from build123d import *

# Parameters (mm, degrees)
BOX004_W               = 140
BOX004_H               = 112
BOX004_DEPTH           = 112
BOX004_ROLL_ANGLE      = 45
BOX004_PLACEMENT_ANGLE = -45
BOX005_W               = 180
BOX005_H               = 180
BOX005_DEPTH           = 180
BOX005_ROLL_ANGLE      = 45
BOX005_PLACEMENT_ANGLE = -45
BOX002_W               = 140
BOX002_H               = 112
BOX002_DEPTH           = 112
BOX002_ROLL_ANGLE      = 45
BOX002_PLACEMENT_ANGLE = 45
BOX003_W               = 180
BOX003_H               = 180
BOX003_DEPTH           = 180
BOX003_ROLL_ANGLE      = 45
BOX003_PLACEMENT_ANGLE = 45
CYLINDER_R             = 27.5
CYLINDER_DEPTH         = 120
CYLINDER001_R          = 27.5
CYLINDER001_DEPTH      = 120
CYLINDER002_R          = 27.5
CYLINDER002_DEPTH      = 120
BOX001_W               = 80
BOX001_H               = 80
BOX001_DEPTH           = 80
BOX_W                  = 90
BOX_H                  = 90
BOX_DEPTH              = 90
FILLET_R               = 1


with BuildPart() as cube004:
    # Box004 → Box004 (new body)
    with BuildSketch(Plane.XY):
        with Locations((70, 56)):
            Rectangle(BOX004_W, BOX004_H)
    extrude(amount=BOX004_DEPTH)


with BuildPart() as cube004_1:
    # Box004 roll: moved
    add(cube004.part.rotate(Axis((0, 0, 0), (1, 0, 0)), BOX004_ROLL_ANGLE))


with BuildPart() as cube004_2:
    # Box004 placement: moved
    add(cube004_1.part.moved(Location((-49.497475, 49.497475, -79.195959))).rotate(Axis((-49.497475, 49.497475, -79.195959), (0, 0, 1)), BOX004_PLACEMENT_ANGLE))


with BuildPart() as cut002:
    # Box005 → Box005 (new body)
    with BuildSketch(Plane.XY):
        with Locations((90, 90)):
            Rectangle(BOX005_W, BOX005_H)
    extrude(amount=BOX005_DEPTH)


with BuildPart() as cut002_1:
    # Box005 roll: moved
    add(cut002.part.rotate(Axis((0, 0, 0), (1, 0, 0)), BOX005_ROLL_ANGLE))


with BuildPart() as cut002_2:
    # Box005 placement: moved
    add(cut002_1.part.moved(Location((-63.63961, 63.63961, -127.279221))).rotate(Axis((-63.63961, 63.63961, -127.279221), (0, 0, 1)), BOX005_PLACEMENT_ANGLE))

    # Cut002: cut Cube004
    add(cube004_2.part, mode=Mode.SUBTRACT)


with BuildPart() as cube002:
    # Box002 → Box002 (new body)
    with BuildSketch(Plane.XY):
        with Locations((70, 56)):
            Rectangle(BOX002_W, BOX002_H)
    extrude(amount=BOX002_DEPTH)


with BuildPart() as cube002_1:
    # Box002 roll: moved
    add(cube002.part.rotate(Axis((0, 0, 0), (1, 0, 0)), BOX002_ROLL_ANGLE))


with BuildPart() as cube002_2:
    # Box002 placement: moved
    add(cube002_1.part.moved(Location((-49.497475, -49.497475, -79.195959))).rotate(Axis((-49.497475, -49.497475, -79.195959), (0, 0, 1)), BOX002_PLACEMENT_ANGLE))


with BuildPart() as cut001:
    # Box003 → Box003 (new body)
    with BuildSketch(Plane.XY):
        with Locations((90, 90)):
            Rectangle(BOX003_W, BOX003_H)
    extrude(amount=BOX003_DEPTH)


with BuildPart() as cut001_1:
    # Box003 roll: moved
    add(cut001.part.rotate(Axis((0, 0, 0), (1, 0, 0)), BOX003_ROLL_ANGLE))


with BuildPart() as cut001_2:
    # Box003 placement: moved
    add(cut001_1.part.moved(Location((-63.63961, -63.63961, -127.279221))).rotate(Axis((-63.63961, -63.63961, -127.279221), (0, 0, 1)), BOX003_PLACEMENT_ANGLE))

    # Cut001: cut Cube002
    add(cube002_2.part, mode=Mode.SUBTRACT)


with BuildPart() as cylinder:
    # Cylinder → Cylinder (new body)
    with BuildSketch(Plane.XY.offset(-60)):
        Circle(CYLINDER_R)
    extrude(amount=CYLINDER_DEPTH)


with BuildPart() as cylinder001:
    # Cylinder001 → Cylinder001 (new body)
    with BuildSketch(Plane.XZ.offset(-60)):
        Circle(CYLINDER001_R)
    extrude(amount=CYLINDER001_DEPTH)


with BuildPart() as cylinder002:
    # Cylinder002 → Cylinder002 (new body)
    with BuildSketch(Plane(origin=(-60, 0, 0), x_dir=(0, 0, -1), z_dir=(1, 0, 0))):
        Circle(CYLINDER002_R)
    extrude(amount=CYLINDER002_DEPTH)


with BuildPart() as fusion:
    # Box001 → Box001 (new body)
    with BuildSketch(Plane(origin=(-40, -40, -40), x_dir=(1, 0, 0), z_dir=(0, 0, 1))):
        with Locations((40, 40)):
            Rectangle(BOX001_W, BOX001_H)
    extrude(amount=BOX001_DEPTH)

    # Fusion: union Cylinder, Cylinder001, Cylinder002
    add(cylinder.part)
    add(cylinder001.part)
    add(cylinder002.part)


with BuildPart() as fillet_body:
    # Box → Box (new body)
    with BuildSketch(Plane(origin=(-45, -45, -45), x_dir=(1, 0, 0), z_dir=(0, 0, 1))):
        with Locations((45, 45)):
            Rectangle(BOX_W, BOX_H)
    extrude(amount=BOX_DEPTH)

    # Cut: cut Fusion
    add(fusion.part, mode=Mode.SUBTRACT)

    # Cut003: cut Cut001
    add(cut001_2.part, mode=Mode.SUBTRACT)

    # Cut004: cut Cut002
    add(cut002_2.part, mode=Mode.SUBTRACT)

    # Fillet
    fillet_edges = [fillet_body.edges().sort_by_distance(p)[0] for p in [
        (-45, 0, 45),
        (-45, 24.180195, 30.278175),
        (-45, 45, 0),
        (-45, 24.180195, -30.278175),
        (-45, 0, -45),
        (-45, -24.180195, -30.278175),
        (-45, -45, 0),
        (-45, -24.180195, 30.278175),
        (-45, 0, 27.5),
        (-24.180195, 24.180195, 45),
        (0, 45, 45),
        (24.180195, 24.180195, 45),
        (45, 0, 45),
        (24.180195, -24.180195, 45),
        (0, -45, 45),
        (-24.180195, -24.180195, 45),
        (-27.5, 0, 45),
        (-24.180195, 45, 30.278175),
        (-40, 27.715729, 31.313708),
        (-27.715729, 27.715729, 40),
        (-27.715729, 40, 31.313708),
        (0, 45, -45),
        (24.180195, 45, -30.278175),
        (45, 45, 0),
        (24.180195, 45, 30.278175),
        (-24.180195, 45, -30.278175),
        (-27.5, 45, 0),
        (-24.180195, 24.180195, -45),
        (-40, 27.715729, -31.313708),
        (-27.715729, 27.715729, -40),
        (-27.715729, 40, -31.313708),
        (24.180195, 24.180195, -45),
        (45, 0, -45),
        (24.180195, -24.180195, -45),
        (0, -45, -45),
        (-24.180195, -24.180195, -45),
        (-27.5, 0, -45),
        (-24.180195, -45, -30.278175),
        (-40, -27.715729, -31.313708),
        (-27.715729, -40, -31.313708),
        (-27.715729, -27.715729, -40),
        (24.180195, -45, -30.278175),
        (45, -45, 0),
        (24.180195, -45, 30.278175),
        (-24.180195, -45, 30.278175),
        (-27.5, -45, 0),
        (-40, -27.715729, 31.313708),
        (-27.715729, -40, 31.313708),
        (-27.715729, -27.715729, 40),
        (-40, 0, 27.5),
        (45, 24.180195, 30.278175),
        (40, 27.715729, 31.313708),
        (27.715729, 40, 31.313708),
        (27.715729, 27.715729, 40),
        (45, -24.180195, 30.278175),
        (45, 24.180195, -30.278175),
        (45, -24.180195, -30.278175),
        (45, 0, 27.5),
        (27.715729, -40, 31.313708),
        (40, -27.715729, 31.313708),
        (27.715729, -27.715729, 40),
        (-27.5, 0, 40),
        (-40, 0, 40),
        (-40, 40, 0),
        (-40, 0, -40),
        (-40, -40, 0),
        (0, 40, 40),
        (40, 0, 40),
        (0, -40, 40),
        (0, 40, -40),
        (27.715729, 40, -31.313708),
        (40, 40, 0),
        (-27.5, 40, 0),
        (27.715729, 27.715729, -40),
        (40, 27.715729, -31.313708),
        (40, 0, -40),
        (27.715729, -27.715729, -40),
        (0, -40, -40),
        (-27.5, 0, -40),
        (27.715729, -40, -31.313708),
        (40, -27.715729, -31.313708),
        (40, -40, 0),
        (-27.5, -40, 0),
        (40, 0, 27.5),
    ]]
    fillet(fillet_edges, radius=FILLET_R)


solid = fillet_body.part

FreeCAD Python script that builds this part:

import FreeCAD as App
import Part
import Sketcher

V = App.Vector
Q = App.Units.Quantity


def add_polygon(sketch, points):
    """Adds a closed chain of lines whose ends are joined by coincident constraints."""
    first, n = sketch.GeometryCount, len(points)
    for a, b in zip(points, points[1:] + points[:1]):
        sketch.addGeometry(Part.LineSegment(App.Vector(*a, 0), App.Vector(*b, 0)), False)
    for i in range(n):
        sketch.addConstraint(Sketcher.Constraint("Coincident", first + i, 2, first + (i + 1) % n, 1))

doc = App.newDocument("Part")
body = doc.addObject("PartDesign::Body", "Body")

sketch1 = doc.addObject("Sketcher::SketchObject", "Sketch")
body.addObject(sketch1)
sketch1.AttachmentSupport = (doc.XY_Plane, [""])
sketch1.MapMode = "FlatFace"
add_polygon(sketch1, [(0, 112), (0, 0), (140, 0), (140, 112)])
sketch1.addConstraint([
    Sketcher.Constraint("Vertical", 0),
    Sketcher.Constraint("Horizontal", 1),
    Sketcher.Constraint("Vertical", 2),
    Sketcher.Constraint("Horizontal", 3),
    Sketcher.Constraint("Coincident", 0, 2, -1, 1),
    Sketcher.Constraint("DistanceX", 1, 1, 1, 2, Q("140 mm")),
    Sketcher.Constraint("DistanceY", 0, 2, 0, 1, Q("112 mm")),
])
pad1 = doc.addObject("PartDesign::Pad", "Pad")
body.addObject(pad1)
pad1.Profile = sketch1
pad1.Length = 112
body2 = doc.addObject("PartDesign::Body", "Body001")
doc.recompute()

body.Placement = App.Placement(V(0, 0, 0), App.Rotation(V(1, 0, 0), 45))
boolean = doc.addObject("PartDesign::Boolean", "Boolean")
body2.addObject(boolean)
boolean.Type = "Fuse"
boolean.addObjects([body])
body3 = doc.addObject("PartDesign::Body", "Body002")
doc.recompute()

body2.Placement = App.Placement(V(-49.497475, 49.497475, -79.195959), App.Rotation(V(0, 0, 1), 315))
boolean2 = doc.addObject("PartDesign::Boolean", "Boolean001")
body3.addObject(boolean2)
boolean2.Type = "Fuse"
boolean2.addObjects([body2])
body4 = doc.addObject("PartDesign::Body", "Body003")

sketch2 = doc.addObject("Sketcher::SketchObject", "Sketch001")
body4.addObject(sketch2)
sketch2.AttachmentSupport = (doc.getObject("XY_Plane003"), [""])
sketch2.MapMode = "FlatFace"
add_polygon(sketch2, [(0, 180), (0, 0), (180, 0), (180, 180)])
sketch2.addConstraint([
    Sketcher.Constraint("Vertical", 0),
    Sketcher.Constraint("Horizontal", 1),
    Sketcher.Constraint("Vertical", 2),
    Sketcher.Constraint("Horizontal", 3),
    Sketcher.Constraint("Coincident", 0, 2, -1, 1),
    Sketcher.Constraint("Equal", 3, 0),
    Sketcher.Constraint("DistanceX", 1, 1, 1, 2, Q("180 mm")),
])
pad2 = doc.addObject("PartDesign::Pad", "Pad001")
body4.addObject(pad2)
pad2.Profile = sketch2
pad2.Length = 180
body5 = doc.addObject("PartDesign::Body", "Body004")
doc.recompute()

body4.Placement = App.Placement(V(0, 0, 0), App.Rotation(V(1, 0, 0), 45))
boolean3 = doc.addObject("PartDesign::Boolean", "Boolean002")
body5.addObject(boolean3)
boolean3.Type = "Fuse"
boolean3.addObjects([body4])
body6 = doc.addObject("PartDesign::Body", "Body005")
doc.recompute()

body5.Placement = App.Placement(V(-63.63961, 63.63961, -127.279221), App.Rotation(V(0, 0, 1), 315))
boolean4 = doc.addObject("PartDesign::Boolean", "Boolean003")
body6.addObject(boolean4)
boolean4.Type = "Fuse"
boolean4.addObjects([body5])
doc.recompute()

boolean5 = doc.addObject("PartDesign::Boolean", "Boolean004")
body6.addObject(boolean5)
boolean5.Type = "Cut"
boolean5.addObjects([body3])
body7 = doc.addObject("PartDesign::Body", "Body006")

sketch3 = doc.addObject("Sketcher::SketchObject", "Sketch002")
body7.addObject(sketch3)
sketch3.AttachmentSupport = (doc.getObject("XY_Plane006"), [""])
sketch3.MapMode = "FlatFace"
add_polygon(sketch3, [(0, 112), (0, 0), (140, 0), (140, 112)])
sketch3.addConstraint([
    Sketcher.Constraint("Vertical", 0),
    Sketcher.Constraint("Horizontal", 1),
    Sketcher.Constraint("Vertical", 2),
    Sketcher.Constraint("Horizontal", 3),
    Sketcher.Constraint("Coincident", 0, 2, -1, 1),
    Sketcher.Constraint("DistanceX", 1, 1, 1, 2, Q("140 mm")),
    Sketcher.Constraint("DistanceY", 0, 2, 0, 1, Q("112 mm")),
])
pad3 = doc.addObject("PartDesign::Pad", "Pad002")
body7.addObject(pad3)
pad3.Profile = sketch3
pad3.Length = 112
body8 = doc.addObject("PartDesign::Body", "Body007")
doc.recompute()

body7.Placement = App.Placement(V(0, 0, 0), App.Rotation(V(1, 0, 0), 45))
boolean6 = doc.addObject("PartDesign::Boolean", "Boolean005")
body8.addObject(boolean6)
boolean6.Type = "Fuse"
boolean6.addObjects([body7])
body9 = doc.addObject("PartDesign::Body", "Body008")
doc.recompute()

body8.Placement = App.Placement(V(-49.497475, -49.497475, -79.195959), App.Rotation(V(0, 0, 1), 45))
boolean7 = doc.addObject("PartDesign::Boolean", "Boolean006")
body9.addObject(boolean7)
boolean7.Type = "Fuse"
boolean7.addObjects([body8])
body10 = doc.addObject("PartDesign::Body", "Body009")

sketch4 = doc.addObject("Sketcher::SketchObject", "Sketch003")
body10.addObject(sketch4)
sketch4.AttachmentSupport = (doc.getObject("XY_Plane009"), [""])
sketch4.MapMode = "FlatFace"
add_polygon(sketch4, [(0, 180), (0, 0), (180, 0), (180, 180)])
sketch4.addConstraint([
    Sketcher.Constraint("Vertical", 0),
    Sketcher.Constraint("Horizontal", 1),
    Sketcher.Constraint("Vertical", 2),
    Sketcher.Constraint("Horizontal", 3),
    Sketcher.Constraint("Coincident", 0, 2, -1, 1),
    Sketcher.Constraint("Equal", 3, 0),
    Sketcher.Constraint("DistanceX", 1, 1, 1, 2, Q("180 mm")),
])
pad4 = doc.addObject("PartDesign::Pad", "Pad003")
body10.addObject(pad4)
pad4.Profile = sketch4
pad4.Length = 180
body11 = doc.addObject("PartDesign::Body", "Body010")
doc.recompute()

body10.Placement = App.Placement(V(0, 0, 0), App.Rotation(V(1, 0, 0), 45))
boolean8 = doc.addObject("PartDesign::Boolean", "Boolean007")
body11.addObject(boolean8)
boolean8.Type = "Fuse"
boolean8.addObjects([body10])
body12 = doc.addObject("PartDesign::Body", "Body011")
doc.recompute()

body11.Placement = App.Placement(V(-63.63961, -63.63961, -127.279221), App.Rotation(V(0, 0, 1), 45))
boolean9 = doc.addObject("PartDesign::Boolean", "Boolean008")
body12.addObject(boolean9)
boolean9.Type = "Fuse"
boolean9.addObjects([body11])
doc.recompute()

boolean10 = doc.addObject("PartDesign::Boolean", "Boolean009")
body12.addObject(boolean10)
boolean10.Type = "Cut"
boolean10.addObjects([body9])
body13 = doc.addObject("PartDesign::Body", "Body012")

sketch5 = doc.addObject("Sketcher::SketchObject", "Sketch004")
body13.addObject(sketch5)
sketch5.AttachmentSupport = (doc.getObject("XY_Plane012"), [""])
sketch5.MapMode = "FlatFace"
sketch5.AttachmentOffset = App.Placement(V(0, 0, -60), App.Rotation())
sketch5.addGeometry(Part.Circle(V(0, 0, 0), V(0, 0, 1), 27.5), False)
sketch5.addConstraint([
    Sketcher.Constraint("Coincident", 0, 3, -1, 1),
    Sketcher.Constraint("Diameter", 0, Q("55 mm")),
])
pad5 = doc.addObject("PartDesign::Pad", "Pad004")
body13.addObject(pad5)
pad5.Profile = sketch5
pad5.Length = 120
body14 = doc.addObject("PartDesign::Body", "Body013")

sketch6 = doc.addObject("Sketcher::SketchObject", "Sketch005")
body14.addObject(sketch6)
sketch6.AttachmentSupport = (doc.getObject("XZ_Plane013"), [""])
sketch6.MapMode = "FlatFace"
sketch6.AttachmentOffset = App.Placement(V(0, 0, -60), App.Rotation())
sketch6.addGeometry(Part.Circle(V(0, 0, 0), V(0, 0, 1), 27.5), False)
sketch6.addConstraint([
    Sketcher.Constraint("Coincident", 0, 3, -1, 1),
    Sketcher.Constraint("Diameter", 0, Q("55 mm")),
])
pad6 = doc.addObject("PartDesign::Pad", "Pad005")
body14.addObject(pad6)
pad6.Profile = sketch6
pad6.Length = 120
body15 = doc.addObject("PartDesign::Body", "Body014")

sketch7 = doc.addObject("Sketcher::SketchObject", "Sketch006")
body15.addObject(sketch7)
sketch7.AttachmentSupport = (doc.getObject("YZ_Plane014"), [""])
sketch7.MapMode = "FlatFace"
sketch7.AttachmentOffset = App.Placement(V(0, 0, -60), App.Rotation())
sketch7.addGeometry(Part.Circle(V(0, 0, 0), V(0, 0, 1), 27.5), False)
sketch7.addConstraint([
    Sketcher.Constraint("Coincident", 0, 3, -1, 1),
    Sketcher.Constraint("Diameter", 0, Q("55 mm")),
])
pad7 = doc.addObject("PartDesign::Pad", "Pad006")
body15.addObject(pad7)
pad7.Profile = sketch7
pad7.Length = 120
body16 = doc.addObject("PartDesign::Body", "Body015")

sketch8 = doc.addObject("Sketcher::SketchObject", "Sketch007")
body16.addObject(sketch8)
sketch8.AttachmentSupport = (doc.getObject("XY_Plane015"), [""])
sketch8.MapMode = "FlatFace"
sketch8.AttachmentOffset = App.Placement(V(0, 0, -40), App.Rotation())
add_polygon(sketch8, [(-40, 40), (-40, -40), (40, -40), (40, 40)])
sketch8.addConstraint([
    Sketcher.Constraint("Vertical", 0),
    Sketcher.Constraint("Horizontal", 1),
    Sketcher.Constraint("Vertical", 2),
    Sketcher.Constraint("Horizontal", 3),
    Sketcher.Constraint("Symmetric", 0, 2, 2, 2, -1, 1),
    Sketcher.Constraint("Equal", 3, 0),
    Sketcher.Constraint("DistanceX", 1, 1, 1, 2, Q("80 mm")),
])
pad8 = doc.addObject("PartDesign::Pad", "Pad007")
body16.addObject(pad8)
pad8.Profile = sketch8
pad8.Length = 80
doc.recompute()

boolean11 = doc.addObject("PartDesign::Boolean", "Boolean010")
body16.addObject(boolean11)
boolean11.Type = "Fuse"
boolean11.addObjects([body13])
doc.recompute()

boolean12 = doc.addObject("PartDesign::Boolean", "Boolean011")
body16.addObject(boolean12)
boolean12.Type = "Fuse"
boolean12.addObjects([body14])
doc.recompute()

boolean13 = doc.addObject("PartDesign::Boolean", "Boolean012")
body16.addObject(boolean13)
boolean13.Type = "Fuse"
boolean13.addObjects([body15])
body17 = doc.addObject("PartDesign::Body", "Body016")

sketch9 = doc.addObject("Sketcher::SketchObject", "Sketch008")
body17.addObject(sketch9)
sketch9.AttachmentSupport = (doc.getObject("XY_Plane016"), [""])
sketch9.MapMode = "FlatFace"
sketch9.AttachmentOffset = App.Placement(V(0, 0, -45), App.Rotation())
add_polygon(sketch9, [(-45, 45), (-45, -45), (45, -45), (45, 45)])
sketch9.addConstraint([
    Sketcher.Constraint("Vertical", 0),
    Sketcher.Constraint("Horizontal", 1),
    Sketcher.Constraint("Vertical", 2),
    Sketcher.Constraint("Horizontal", 3),
    Sketcher.Constraint("Symmetric", 0, 2, 2, 2, -1, 1),
    Sketcher.Constraint("Equal", 3, 0),
    Sketcher.Constraint("DistanceX", 1, 1, 1, 2, Q("90 mm")),
])
pad9 = doc.addObject("PartDesign::Pad", "Pad008")
body17.addObject(pad9)
pad9.Profile = sketch9
pad9.Length = 90
doc.recompute()

boolean14 = doc.addObject("PartDesign::Boolean", "Boolean013")
body17.addObject(boolean14)
boolean14.Type = "Cut"
boolean14.addObjects([body16])
doc.recompute()

boolean15 = doc.addObject("PartDesign::Boolean", "Boolean014")
body17.addObject(boolean15)
boolean15.Type = "Cut"
boolean15.addObjects([body12])
doc.recompute()

boolean16 = doc.addObject("PartDesign::Boolean", "Boolean015")
body17.addObject(boolean16)
boolean16.Type = "Cut"
boolean16.addObjects([body6])
doc.recompute()

fillet = doc.addObject("PartDesign::Fillet", "Fillet")
body17.addObject(fillet)
fillet.Base = (boolean16, ["Edge1"])
fillet.UseAllEdges = True
fillet.Radius = 1

doc.recompute()
